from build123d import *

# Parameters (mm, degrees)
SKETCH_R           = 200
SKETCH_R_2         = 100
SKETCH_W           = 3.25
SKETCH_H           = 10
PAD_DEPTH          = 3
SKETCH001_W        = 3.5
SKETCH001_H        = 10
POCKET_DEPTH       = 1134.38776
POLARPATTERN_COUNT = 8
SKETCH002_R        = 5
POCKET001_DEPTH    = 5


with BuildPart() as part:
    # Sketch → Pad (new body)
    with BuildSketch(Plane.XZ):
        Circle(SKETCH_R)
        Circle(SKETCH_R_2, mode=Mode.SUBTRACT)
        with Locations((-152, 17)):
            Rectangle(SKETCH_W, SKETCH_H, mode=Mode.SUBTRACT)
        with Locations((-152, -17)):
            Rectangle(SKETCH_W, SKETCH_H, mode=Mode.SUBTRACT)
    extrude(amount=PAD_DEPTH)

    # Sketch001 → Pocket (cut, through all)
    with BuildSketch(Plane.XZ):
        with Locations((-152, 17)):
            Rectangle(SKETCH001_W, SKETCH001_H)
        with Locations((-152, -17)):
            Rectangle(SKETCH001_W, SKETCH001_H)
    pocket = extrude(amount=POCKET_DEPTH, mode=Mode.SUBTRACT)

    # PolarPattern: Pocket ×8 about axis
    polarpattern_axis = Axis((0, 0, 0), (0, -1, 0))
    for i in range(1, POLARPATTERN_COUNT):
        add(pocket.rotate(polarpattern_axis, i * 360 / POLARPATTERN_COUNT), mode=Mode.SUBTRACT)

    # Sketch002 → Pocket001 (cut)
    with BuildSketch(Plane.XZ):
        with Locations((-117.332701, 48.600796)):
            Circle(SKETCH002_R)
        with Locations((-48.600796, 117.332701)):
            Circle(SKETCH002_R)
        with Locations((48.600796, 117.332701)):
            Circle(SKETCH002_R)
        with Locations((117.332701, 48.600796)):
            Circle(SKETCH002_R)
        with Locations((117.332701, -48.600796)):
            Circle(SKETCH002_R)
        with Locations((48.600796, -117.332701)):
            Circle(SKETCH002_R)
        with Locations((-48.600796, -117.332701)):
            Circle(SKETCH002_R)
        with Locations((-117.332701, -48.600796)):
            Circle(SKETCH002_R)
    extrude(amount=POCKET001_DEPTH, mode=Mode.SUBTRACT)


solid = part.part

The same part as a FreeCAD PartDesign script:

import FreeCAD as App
import Part
import Sketcher

doc = App.newDocument("Part")
body = doc.addObject("PartDesign::Body", "Body")

# Sketch on XZ plane
sketch1 = body.newObject("Sketcher::SketchObject", "Sketch")
sketch1.AttachmentSupport = (doc.getObject("XZ_Plane"), [""])
sketch1.MapMode = "FlatFace"
sketch1.addGeometry(Part.Circle(App.Vector(0, 0, 0), App.Vector(0, 0, 1), 200), False)
sketch1.addGeometry(Part.LineSegment(App.Vector(-150.4, -22, 0), App.Vector(-153.6, -22, 0)), False)
sketch1.addGeometry(Part.LineSegment(App.Vector(-153.6, -22, 0), App.Vector(-153.6, -12, 0)), False)
sketch1.addGeometry(Part.LineSegment(App.Vector(-153.6, -12, 0), App.Vector(-150.4, -12, 0)), False)
sketch1.addGeometry(Part.LineSegment(App.Vector(-150.4, -12, 0), App.Vector(-150.4, -22, 0)), False)
sketch1.addGeometry(Part.LineSegment(App.Vector(-150.4, 12, 0), App.Vector(-153.6, 12, 0)), False)
sketch1.addGeometry(Part.LineSegment(App.Vector(-153.6, 12, 0), App.Vector(-153.6, 22, 0)), False)
sketch1.addGeometry(Part.LineSegment(App.Vector(-153.6, 22, 0), App.Vector(-150.4, 22, 0)), False)
sketch1.addGeometry(Part.LineSegment(App.Vector(-150.4, 22, 0), App.Vector(-150.4, 12, 0)), False)
sketch1.addGeometry(Part.Circle(App.Vector(0, 0, 0), App.Vector(0, 0, 1), 100), False)
sketch1.addConstraint(Sketcher.Constraint("Coincident", 1, 2, 2, 1))
sketch1.addConstraint(Sketcher.Constraint("Coincident", 2, 2, 3, 1))
sketch1.addConstraint(Sketcher.Constraint("Coincident", 3, 2, 4, 1))
sketch1.addConstraint(Sketcher.Constraint("Coincident", 4, 2, 1, 1))
sketch1.addConstraint(Sketcher.Constraint("Coincident", 5, 2, 6, 1))
sketch1.addConstraint(Sketcher.Constraint("Coincident", 6, 2, 7, 1))
sketch1.addConstraint(Sketcher.Constraint("Coincident", 7, 2, 8, 1))
sketch1.addConstraint(Sketcher.Constraint("Coincident", 8, 2, 5, 1))
sketch1.addConstraint(Sketcher.Constraint("Horizontal", 1))
sketch1.addConstraint(Sketcher.Constraint("Vertical", 2))
sketch1.addConstraint(Sketcher.Constraint("Horizontal", 3))
sketch1.addConstraint(Sketcher.Constraint("Vertical", 4))
sketch1.addConstraint(Sketcher.Constraint("Horizontal", 5))
sketch1.addConstraint(Sketcher.Constraint("Vertical", 6))
sketch1.addConstraint(Sketcher.Constraint("Horizontal", 7))
sketch1.addConstraint(Sketcher.Constraint("Vertical", 8))
sketch1.addConstraint(Sketcher.Constraint("Coincident", 0, 3, -1, 1))
sketch1.addConstraint(Sketcher.Constraint("Coincident", 9, 3, -1, 1))
sketch1.addConstraint(Sketcher.Constraint("Symmetric", 2, 2, 5, 2, -1))
sketch1.addConstraint(Sketcher.Constraint("Symmetric", 4, 2, 7, 2, -1))
sketch1.addConstraint(Sketcher.Constraint("Diameter", 0, 400.0))
sketch1.addConstraint(Sketcher.Constraint("Diameter", 9, 200.0))
sketch1.addConstraint(Sketcher.Constraint("DistanceY", 2, 1, 2, 2, 10.0))
sketch1.addConstraint(Sketcher.Constraint("DistanceY", 1, 2, -1, 1, 22.0))
sketch1.addConstraint(Sketcher.Constraint("DistanceX", 1, 2, 1, 1, 3.25))
sketch1.addConstraint(Sketcher.Constraint("DistanceX", 1, 2, -1, 1, 153.625))
pad1 = body.newObject("PartDesign::Pad", "Pad")
pad1.Profile = sketch1
pad1.Length = 3

# Sketch on XZ plane
sketch2 = body.newObject("Sketcher::SketchObject", "Sketch001")
sketch2.AttachmentSupport = (doc.getObject("XZ_Plane"), [""])
sketch2.MapMode = "FlatFace"
sketch2.addGeometry(Part.LineSegment(App.Vector(-153.8, 22, 0), App.Vector(-153.8, 12, 0)), False)
sketch2.addGeometry(Part.LineSegment(App.Vector(-153.8, 12, 0), App.Vector(-150.2, 12, 0)), False)
sketch2.addGeometry(Part.LineSegment(App.Vector(-150.2, 12, 0), App.Vector(-150.2, 22, 0)), False)
sketch2.addGeometry(Part.LineSegment(App.Vector(-150.2, 22, 0), App.Vector(-153.8, 22, 0)), False)
sketch2.addGeometry(Part.LineSegment(App.Vector(-153.8, -12, 0), App.Vector(-153.8, -22, 0)), False)
sketch2.addGeometry(Part.LineSegment(App.Vector(-153.8, -22, 0), App.Vector(-150.2, -22, 0)), False)
sketch2.addGeometry(Part.LineSegment(App.Vector(-150.2, -22, 0), App.Vector(-150.2, -12, 0)), False)
sketch2.addGeometry(Part.LineSegment(App.Vector(-150.2, -12, 0), App.Vector(-153.8, -12, 0)), False)
sketch2.addConstraint(Sketcher.Constraint("Coincident", 0, 2, 1, 1))
sketch2.addConstraint(Sketcher.Constraint("Coincident", 1, 2, 2, 1))
sketch2.addConstraint(Sketcher.Constraint("Coincident", 2, 2, 3, 1))
sketch2.addConstraint(Sketcher.Constraint("Coincident", 3, 2, 0, 1))
sketch2.addConstraint(Sketcher.Constraint("Coincident", 4, 2, 5, 1))
sketch2.addConstraint(Sketcher.Constraint("Coincident", 5, 2, 6, 1))
sketch2.addConstraint(Sketcher.Constraint("Coincident", 6, 2, 7, 1))
sketch2.addConstraint(Sketcher.Constraint("Coincident", 7, 2, 4, 1))
sketch2.addConstraint(Sketcher.Constraint("Vertical", 0))
sketch2.addConstraint(Sketcher.Constraint("Horizontal", 1))
sketch2.addConstraint(Sketcher.Constraint("Vertical", 2))
sketch2.addConstraint(Sketcher.Constraint("Horizontal", 3))
sketch2.addConstraint(Sketcher.Constraint("Vertical", 4))
sketch2.addConstraint(Sketcher.Constraint("Horizontal", 5))
sketch2.addConstraint(Sketcher.Constraint("Vertical", 6))
sketch2.addConstraint(Sketcher.Constraint("Horizontal", 7))
sketch2.addConstraint(Sketcher.Constraint("Symmetric", 3, 2, 4, 2, -1))
sketch2.addConstraint(Sketcher.Constraint("Symmetric", 1, 2, 6, 2, -1))
sketch2.addConstraint(Sketcher.Constraint("DistanceY", 0, 2, 0, 1, 10.0))
sketch2.addConstraint(Sketcher.Constraint("DistanceX", 1, 1, 1, 2, 3.5))
sketch2.addConstraint(Sketcher.Constraint("DistanceY", -1, 1, 0, 2, 12.0))
sketch2.addConstraint(Sketcher.Constraint("DistanceX", 0, 2, -1, 1, 153.75))
pocket1 = body.newObject("PartDesign::Pocket", "Pocket")
pocket1.Profile = sketch2
pocket1.Type = "ThroughAll"
pocket1.Reversed = True
doc.recompute()

polarpattern = body.newObject("PartDesign::PolarPattern", "PolarPattern")
polarpattern.Originals = [pocket1]
polarpattern.Axis = (doc.getObject("Y_Axis"), [""])
polarpattern.Angle = 360
polarpattern.Occurrences = 8
body.Tip = polarpattern

# Sketch on XZ plane
sketch3 = body.newObject("Sketcher::SketchObject", "Sketch002")
sketch3.AttachmentSupport = (doc.getObject("XZ_Plane"), [""])
sketch3.MapMode = "FlatFace"
sketch3.addGeometry(Part.Circle(App.Vector(-117, 49, 0), App.Vector(0, 0, 1), 5), False)
sketch3.addGeometry(Part.Circle(App.Vector(-49, 117, 0), App.Vector(0, 0, 1), 5), False)
sketch3.addGeometry(Part.Circle(App.Vector(49, 117, 0), App.Vector(0, 0, 1), 5), False)
sketch3.addGeometry(Part.Circle(App.Vector(117, 49, 0), App.Vector(0, 0, 1), 5), False)
sketch3.addGeometry(Part.Circle(App.Vector(117, -49, 0), App.Vector(0, 0, 1), 5), False)
sketch3.addGeometry(Part.Circle(App.Vector(49, -117, 0), App.Vector(0, 0, 1), 5), False)
sketch3.addGeometry(Part.Circle(App.Vector(-49, -117, 0), App.Vector(0, 0, 1), 5), False)
sketch3.addGeometry(Part.Circle(App.Vector(-117, -49, 0), App.Vector(0, 0, 1), 5), False)
sketch3.addConstraint(Sketcher.Constraint("Equal", 0, 1))
sketch3.addConstraint(Sketcher.Constraint("Equal", 1, 2))
sketch3.addConstraint(Sketcher.Constraint("Equal", 2, 3))
sketch3.addConstraint(Sketcher.Constraint("Equal", 3, 4))
sketch3.addConstraint(Sketcher.Constraint("Equal", 4, 5))
sketch3.addConstraint(Sketcher.Constraint("Equal", 5, 6))
sketch3.addConstraint(Sketcher.Constraint("Equal", 6, 7))
sketch3.addConstraint(Sketcher.Constraint("Symmetric", 0, 3, 4, 3, -1, 1))
sketch3.addConstraint(Sketcher.Constraint("Symmetric", 1, 3, 5, 3, -1, 1))
sketch3.addConstraint(Sketcher.Constraint("Symmetric", 2, 3, 6, 3, -1, 1))
sketch3.addConstraint(Sketcher.Constraint("Symmetric", 3, 3, 7, 3, -1, 1))
sketch3.addConstraint(Sketcher.Constraint("Symmetric", 1, 3, 2, 3, -2))
sketch3.addConstraint(Sketcher.Constraint("Symmetric", 0, 3, 3, 3, -2))
sketch3.addConstraint(Sketcher.Constraint("Diameter", 0, 10.0))
sketch3.addConstraint(Sketcher.Constraint("DistanceX", 0, 3, -1, 1, 117.332701))
sketch3.addConstraint(Sketcher.Constraint("DistanceY", -1, 1, 1, 3, 117.332701))
sketch3.addConstraint(Sketcher.Constraint("DistanceY", -1, 1, 0, 3, 48.600796))
sketch3.addConstraint(Sketcher.Constraint("DistanceX", 1, 3, -1, 1, 48.600796))
pocket2 = body.newObject("PartDesign::Pocket", "Pocket001")
pocket2.Profile = sketch3
pocket2.Length = 5
pocket2.Reversed = True

doc.recompute()
